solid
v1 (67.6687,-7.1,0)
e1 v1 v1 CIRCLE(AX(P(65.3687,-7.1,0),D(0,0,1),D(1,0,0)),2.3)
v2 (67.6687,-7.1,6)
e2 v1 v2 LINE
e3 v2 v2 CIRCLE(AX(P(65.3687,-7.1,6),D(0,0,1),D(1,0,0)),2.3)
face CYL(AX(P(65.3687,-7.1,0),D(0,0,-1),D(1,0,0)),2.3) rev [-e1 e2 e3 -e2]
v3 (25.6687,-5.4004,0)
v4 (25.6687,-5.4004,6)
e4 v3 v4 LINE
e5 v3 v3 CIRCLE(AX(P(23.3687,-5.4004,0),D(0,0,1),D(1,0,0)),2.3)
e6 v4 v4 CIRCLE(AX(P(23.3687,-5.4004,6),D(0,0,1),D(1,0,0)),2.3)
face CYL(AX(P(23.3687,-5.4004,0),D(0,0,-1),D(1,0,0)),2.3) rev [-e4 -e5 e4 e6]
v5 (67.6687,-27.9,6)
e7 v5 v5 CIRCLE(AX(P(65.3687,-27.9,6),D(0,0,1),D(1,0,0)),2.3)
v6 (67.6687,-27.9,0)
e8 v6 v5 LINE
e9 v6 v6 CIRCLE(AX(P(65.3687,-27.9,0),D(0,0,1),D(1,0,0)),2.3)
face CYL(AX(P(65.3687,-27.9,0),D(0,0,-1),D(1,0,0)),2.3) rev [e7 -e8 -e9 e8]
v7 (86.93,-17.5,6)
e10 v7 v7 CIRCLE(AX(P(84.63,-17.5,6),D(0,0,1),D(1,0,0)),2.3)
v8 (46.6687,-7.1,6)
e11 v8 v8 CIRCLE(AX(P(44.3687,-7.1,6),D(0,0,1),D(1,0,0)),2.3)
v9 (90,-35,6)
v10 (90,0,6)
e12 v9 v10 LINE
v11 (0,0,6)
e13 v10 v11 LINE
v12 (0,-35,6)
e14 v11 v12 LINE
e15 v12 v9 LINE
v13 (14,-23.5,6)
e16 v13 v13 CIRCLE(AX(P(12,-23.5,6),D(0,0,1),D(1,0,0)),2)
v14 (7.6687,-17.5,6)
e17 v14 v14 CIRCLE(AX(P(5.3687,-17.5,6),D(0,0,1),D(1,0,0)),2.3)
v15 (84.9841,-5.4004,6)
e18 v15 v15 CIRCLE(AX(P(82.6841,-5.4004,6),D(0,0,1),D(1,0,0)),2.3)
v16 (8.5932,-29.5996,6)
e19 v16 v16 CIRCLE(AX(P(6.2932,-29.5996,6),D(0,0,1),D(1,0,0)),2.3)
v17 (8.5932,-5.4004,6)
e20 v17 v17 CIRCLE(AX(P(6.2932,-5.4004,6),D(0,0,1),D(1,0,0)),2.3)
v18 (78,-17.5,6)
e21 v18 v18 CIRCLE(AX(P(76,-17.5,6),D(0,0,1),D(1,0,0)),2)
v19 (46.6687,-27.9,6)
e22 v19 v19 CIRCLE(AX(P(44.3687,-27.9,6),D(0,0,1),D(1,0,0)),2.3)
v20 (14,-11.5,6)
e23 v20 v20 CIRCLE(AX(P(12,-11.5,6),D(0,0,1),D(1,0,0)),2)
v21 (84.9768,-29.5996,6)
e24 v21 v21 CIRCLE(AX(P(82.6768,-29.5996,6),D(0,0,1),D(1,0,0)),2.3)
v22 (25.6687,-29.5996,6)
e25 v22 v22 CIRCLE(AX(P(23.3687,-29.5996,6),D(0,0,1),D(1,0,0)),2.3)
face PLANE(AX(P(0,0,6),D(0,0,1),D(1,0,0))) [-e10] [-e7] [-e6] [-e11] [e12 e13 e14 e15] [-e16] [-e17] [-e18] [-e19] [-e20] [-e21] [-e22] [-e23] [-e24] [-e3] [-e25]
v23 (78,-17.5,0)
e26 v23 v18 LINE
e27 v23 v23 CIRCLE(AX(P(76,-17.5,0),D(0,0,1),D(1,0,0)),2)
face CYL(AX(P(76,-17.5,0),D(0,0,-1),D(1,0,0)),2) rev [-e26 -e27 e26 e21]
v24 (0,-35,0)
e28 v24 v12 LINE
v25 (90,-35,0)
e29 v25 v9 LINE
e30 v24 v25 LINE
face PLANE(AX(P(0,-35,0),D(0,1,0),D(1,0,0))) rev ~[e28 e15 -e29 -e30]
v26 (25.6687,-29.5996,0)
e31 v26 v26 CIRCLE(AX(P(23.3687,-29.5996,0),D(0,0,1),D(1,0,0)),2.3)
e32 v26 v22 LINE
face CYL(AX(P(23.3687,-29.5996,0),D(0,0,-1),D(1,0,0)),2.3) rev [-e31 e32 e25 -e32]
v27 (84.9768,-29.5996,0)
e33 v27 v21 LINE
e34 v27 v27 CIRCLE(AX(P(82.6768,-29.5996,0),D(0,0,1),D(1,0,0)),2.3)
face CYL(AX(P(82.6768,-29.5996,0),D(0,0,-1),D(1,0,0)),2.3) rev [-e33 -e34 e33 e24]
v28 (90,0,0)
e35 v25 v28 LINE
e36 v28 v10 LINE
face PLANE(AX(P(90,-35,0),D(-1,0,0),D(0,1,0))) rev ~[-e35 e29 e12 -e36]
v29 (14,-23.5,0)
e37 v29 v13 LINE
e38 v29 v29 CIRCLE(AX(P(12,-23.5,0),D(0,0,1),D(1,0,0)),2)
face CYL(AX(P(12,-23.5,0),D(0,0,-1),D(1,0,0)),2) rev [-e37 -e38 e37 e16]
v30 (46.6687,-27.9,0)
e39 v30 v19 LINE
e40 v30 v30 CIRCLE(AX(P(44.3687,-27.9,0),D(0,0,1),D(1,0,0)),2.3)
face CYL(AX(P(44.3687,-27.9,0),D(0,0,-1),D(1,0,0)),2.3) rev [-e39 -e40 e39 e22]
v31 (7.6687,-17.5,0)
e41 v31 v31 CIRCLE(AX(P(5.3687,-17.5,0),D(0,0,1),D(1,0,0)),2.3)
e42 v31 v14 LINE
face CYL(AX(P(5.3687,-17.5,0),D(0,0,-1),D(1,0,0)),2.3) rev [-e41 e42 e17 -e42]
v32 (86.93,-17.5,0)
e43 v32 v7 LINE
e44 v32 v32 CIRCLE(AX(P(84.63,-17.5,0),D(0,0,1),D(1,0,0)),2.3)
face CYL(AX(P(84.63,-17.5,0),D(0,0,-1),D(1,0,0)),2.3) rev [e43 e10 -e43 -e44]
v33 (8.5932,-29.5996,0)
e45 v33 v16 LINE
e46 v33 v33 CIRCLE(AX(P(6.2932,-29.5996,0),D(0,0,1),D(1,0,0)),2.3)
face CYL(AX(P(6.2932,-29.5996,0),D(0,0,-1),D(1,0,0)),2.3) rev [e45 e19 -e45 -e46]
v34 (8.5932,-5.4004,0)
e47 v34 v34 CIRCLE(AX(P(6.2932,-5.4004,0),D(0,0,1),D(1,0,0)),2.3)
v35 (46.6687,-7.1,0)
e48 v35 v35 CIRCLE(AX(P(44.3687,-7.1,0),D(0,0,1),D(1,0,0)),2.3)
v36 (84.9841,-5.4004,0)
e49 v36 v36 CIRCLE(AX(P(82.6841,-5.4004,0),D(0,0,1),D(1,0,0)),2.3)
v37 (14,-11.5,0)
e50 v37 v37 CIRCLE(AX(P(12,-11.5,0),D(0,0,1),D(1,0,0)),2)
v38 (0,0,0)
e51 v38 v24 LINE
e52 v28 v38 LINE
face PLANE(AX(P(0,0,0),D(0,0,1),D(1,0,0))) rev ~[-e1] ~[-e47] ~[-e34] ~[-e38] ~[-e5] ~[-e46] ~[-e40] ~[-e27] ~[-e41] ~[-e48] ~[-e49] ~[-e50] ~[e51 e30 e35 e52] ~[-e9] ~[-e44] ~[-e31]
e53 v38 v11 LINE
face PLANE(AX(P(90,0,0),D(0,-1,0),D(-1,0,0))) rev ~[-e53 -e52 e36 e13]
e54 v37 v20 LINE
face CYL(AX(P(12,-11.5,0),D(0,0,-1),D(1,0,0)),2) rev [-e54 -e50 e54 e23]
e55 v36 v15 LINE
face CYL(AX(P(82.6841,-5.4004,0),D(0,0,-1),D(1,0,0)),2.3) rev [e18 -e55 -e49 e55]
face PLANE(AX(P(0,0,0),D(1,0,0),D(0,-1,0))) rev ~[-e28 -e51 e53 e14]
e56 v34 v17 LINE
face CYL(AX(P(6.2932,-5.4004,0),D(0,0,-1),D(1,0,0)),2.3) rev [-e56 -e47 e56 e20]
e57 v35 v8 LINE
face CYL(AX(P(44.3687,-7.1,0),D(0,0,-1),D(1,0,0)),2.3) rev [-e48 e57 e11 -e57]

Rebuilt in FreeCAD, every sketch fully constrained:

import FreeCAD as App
import Part
import Sketcher

doc = App.newDocument("Part")
params = doc.addObject("Spreadsheet::Sheet", "Params")
for row, (alias, value) in enumerate([
    ("sketch1_diameter", "4 mm"),
    ("sketch1_diameter2", "4.6 mm"),
    ("sketch1_width", "90 mm"),
    ("sketch1_height", "35 mm"),
    ("pad1_length", "6 mm"),
], start=1):
    params.set(f"A{row}", alias)
    params.set(f"B{row}", "=" + value)
    params.setAlias(f"B{row}", alias)

body = doc.addObject("PartDesign::Body", "Body")

# Sketch on XY plane
sketch1 = body.newObject("Sketcher::SketchObject", "Sketch")
sketch1.AttachmentSupport = (doc.getObject("XY_Plane"), [""])
sketch1.MapMode = "FlatFace"
sketch1.addGeometry([
    Part.LineSegment(App.Vector(90, -35, 0), App.Vector(90, 0, 0)),  # 0
    Part.LineSegment(App.Vector(90, 0, 0), App.Vector(0, 0, 0)),  # 1
    Part.LineSegment(App.Vector(0, 0, 0), App.Vector(0, -35, 0)),  # 2
    Part.LineSegment(App.Vector(0, -35, 0), App.Vector(90, -35, 0)),  # 3
    Part.Circle(App.Vector(6.3, -29.6, 0), App.Vector(0, 0, 1), 2.3),  # 4
    Part.Circle(App.Vector(23.4, -29.6, 0), App.Vector(0, 0, 1), 2.3),  # 5
    Part.Circle(App.Vector(44.4, -27.9, 0), App.Vector(0, 0, 1), 2.3),  # 6
    Part.Circle(App.Vector(12, -23.5, 0), App.Vector(0, 0, 1), 2),  # 7
    Part.Circle(App.Vector(65.4, -27.9, 0), App.Vector(0, 0, 1), 2.3),  # 8
    Part.Circle(App.Vector(82.7, -29.6, 0), App.Vector(0, 0, 1), 2.3),  # 9
    Part.Circle(App.Vector(5.4, -17.5, 0), App.Vector(0, 0, 1), 2.3),  # 10
    Part.Circle(App.Vector(12, -11.5, 0), App.Vector(0, 0, 1), 2),  # 11
    Part.Circle(App.Vector(6.3, -5.4, 0), App.Vector(0, 0, 1), 2.3),  # 12
    Part.Circle(App.Vector(23.4, -5.4, 0), App.Vector(0, 0, 1), 2.3),  # 13
    Part.Circle(App.Vector(44.4, -7.1, 0), App.Vector(0, 0, 1), 2.3),  # 14
    Part.Circle(App.Vector(76, -17.5, 0), App.Vector(0, 0, 1), 2),  # 15
    Part.Circle(App.Vector(84.6, -17.5, 0), App.Vector(0, 0, 1), 2.3),  # 16
    Part.Circle(App.Vector(65.4, -7.1, 0), App.Vector(0, 0, 1), 2.3),  # 17
    Part.Circle(App.Vector(82.7, -5.4, 0), App.Vector(0, 0, 1), 2.3),  # 18
], False)
sketch1.addConstraint([
    Sketcher.Constraint("Coincident", 0, 2, 1, 1),
    Sketcher.Constraint("Coincident", 1, 2, 2, 1),
    Sketcher.Constraint("Coincident", 2, 2, 3, 1),
    Sketcher.Constraint("Coincident", 3, 2, 0, 1),
    Sketcher.Constraint("Vertical", 0),
    Sketcher.Constraint("Horizontal", 1),
    Sketcher.Constraint("Vertical", 2),
    Sketcher.Constraint("Horizontal", 3),
    Sketcher.Constraint("Coincident", 1, 2, -1, 1),
    Sketcher.Constraint("Equal", 4, 5),
    Sketcher.Constraint("Equal", 5, 6),
    Sketcher.Constraint("Equal", 6, 8),
    Sketcher.Constraint("Equal", 8, 9),
    Sketcher.Constraint("Equal", 9, 10),
    Sketcher.Constraint("Equal", 7, 11),
    Sketcher.Constraint("Equal", 10, 12),
    Sketcher.Constraint("Equal", 12, 13),
    Sketcher.Constraint("Equal", 13, 14),
    Sketcher.Constraint("Equal", 11, 15),
    Sketcher.Constraint("Equal", 14, 16),
    Sketcher.Constraint("Equal", 16, 17),
    Sketcher.Constraint("Equal", 17, 18),
    Sketcher.Constraint("Horizontal", 4, 3, 5, 3),
    Sketcher.Constraint("Horizontal", 6, 3, 8, 3),
    Sketcher.Constraint("Horizontal", 5, 3, 9, 3),
    Sketcher.Constraint("Horizontal", 12, 3, 13, 3),
    Sketcher.Constraint("Horizontal", 10, 3, 15, 3),
    Sketcher.Constraint("Horizontal", 15, 3, 16, 3),
    Sketcher.Constraint("Horizontal", 14, 3, 17, 3),
    Sketcher.Constraint("Horizontal", 13, 3, 18, 3),
    Sketcher.Constraint("Vertical", 7, 3, 11, 3),
    Sketcher.Constraint("Vertical", 4, 3, 12, 3),
    Sketcher.Constraint("Vertical", 5, 3, 13, 3),
    Sketcher.Constraint("Vertical", 6, 3, 14, 3),
    Sketcher.Constraint("Vertical", 8, 3, 17, 3),
    Sketcher.Constraint("Diameter", 7, 4.0),
    Sketcher.Constraint("Diameter", 4, 4.6),
    Sketcher.Constraint("DistanceX", 1, 2, 1, 1, 90.0),
    Sketcher.Constraint("DistanceY", 0, 1, 0, 2, 35.0),
    Sketcher.Constraint("DistanceX", -1, 1, 7, 3, 12.0),
    Sketcher.Constraint("DistanceX", -1, 1, 15, 3, 76.0),
    Sketcher.Constraint("DistanceX", 5, 3, 6, 3, 21.0),
    Sketcher.Constraint("DistanceX", 6, 3, 8, 3, 21.0),
    Sketcher.Constraint("DistanceY", 7, 3, 10, 3, 6.0),
    Sketcher.Constraint("DistanceX", 10, 3, 5, 3, 18.0),
    Sketcher.Constraint("DistanceY", 10, 3, 11, 3, 6.0),
    Sketcher.Constraint("DistanceY", 6, 3, -1, 1, 27.9),
    Sketcher.Constraint("DistanceY", 7, 3, -1, 1, 23.5),
    Sketcher.Constraint("DistanceY", 14, 3, -1, 1, 7.1),
    Sketcher.Constraint("DistanceX", -1, 1, 16, 3, 84.63),
    Sketcher.Constraint("DistanceX", -1, 1, 18, 3, 82.684),
    Sketcher.Constraint("DistanceX", 8, 3, 9, 3, 17.308),
    Sketcher.Constraint("DistanceX", -1, 1, 4, 3, 6.2932),
    Sketcher.Constraint("DistanceY", 4, 3, -1, 1, 29.5996),
    Sketcher.Constraint("DistanceX", -1, 1, 5, 3, 23.3687),
    Sketcher.Constraint("DistanceY", 12, 3, -1, 1, 5.4004),
])
sketch1.setExpression("Constraints[35]", "Params.sketch1_diameter")
sketch1.setExpression("Constraints[36]", "Params.sketch1_diameter2")
sketch1.setExpression("Constraints[37]", "Params.sketch1_width")
sketch1.setExpression("Constraints[38]", "Params.sketch1_height")
pad1 = body.newObject("PartDesign::Pad", "Pad")
pad1.Profile = sketch1
pad1.setExpression("Length", "Params.pad1_length")

doc.recompute()
